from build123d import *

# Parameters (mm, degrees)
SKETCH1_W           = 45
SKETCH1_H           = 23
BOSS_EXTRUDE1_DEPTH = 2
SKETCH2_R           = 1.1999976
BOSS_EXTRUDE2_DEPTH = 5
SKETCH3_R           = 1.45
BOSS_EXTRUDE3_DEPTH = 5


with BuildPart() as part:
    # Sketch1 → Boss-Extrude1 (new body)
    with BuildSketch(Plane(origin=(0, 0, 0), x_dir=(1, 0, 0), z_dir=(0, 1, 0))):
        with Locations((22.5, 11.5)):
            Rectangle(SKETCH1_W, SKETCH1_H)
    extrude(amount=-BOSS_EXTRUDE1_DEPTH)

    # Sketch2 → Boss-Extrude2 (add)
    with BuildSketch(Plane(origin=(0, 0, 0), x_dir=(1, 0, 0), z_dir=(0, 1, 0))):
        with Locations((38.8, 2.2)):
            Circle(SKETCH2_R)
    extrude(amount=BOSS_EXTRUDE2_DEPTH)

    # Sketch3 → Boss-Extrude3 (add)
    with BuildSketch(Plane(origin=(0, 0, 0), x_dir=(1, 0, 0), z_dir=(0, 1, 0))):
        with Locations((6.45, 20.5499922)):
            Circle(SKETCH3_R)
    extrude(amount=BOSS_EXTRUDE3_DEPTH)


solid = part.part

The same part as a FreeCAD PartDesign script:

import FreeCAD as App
import Part
import Sketcher

V = App.Vector
Q = App.Units.Quantity


def add_polygon(sketch, points):
    """Adds a closed chain of lines whose ends are joined by coincident constraints."""
    first, n = sketch.GeometryCount, len(points)
    for a, b in zip(points, points[1:] + points[:1]):
        sketch.addGeometry(Part.LineSegment(App.Vector(*a, 0), App.Vector(*b, 0)), False)
    for i in range(n):
        sketch.addConstraint(Sketcher.Constraint("Coincident", first + i, 2, first + (i + 1) % n, 1))

doc = App.newDocument("Part")
body = doc.addObject("PartDesign::Body", "Body")

# Sketch on XZ plane
sketch1 = body.newObject("Sketcher::SketchObject", "Sketch")
sketch1.AttachmentSupport = (doc.getObject("XZ_Plane"), [""])
sketch1.MapMode = "FlatFace"
add_polygon(sketch1, [(0, -23), (0, 0), (45, 0), (45, -23)])  # lines 0-3
sketch1.addConstraint(Sketcher.Constraint("Vertical", 0))
sketch1.addConstraint(Sketcher.Constraint("Horizontal", 1))
sketch1.addConstraint(Sketcher.Constraint("Vertical", 2))
sketch1.addConstraint(Sketcher.Constraint("Horizontal", 3))
sketch1.addConstraint(Sketcher.Constraint("Coincident", 0, 2, -1, 1))
sketch1.addConstraint(Sketcher.Constraint("DistanceX", 1, 1, 1, 2, Q("45 mm")))
sketch1.addConstraint(Sketcher.Constraint("DistanceY", 0, 1, 0, 2, Q("23 mm")))
pad1 = body.newObject("PartDesign::Pad", "Pad")
pad1.Profile = sketch1
pad1.Length = 2

# Sketch on XZ plane
sketch2 = body.newObject("Sketcher::SketchObject", "Sketch001")
sketch2.AttachmentSupport = (doc.getObject("XZ_Plane"), [""])
sketch2.MapMode = "FlatFace"
sketch2.addGeometry(Part.Circle(V(38.8, -2.2, 0), V(0, 0, 1), 1.199998), False)
sketch2.addConstraint(Sketcher.Constraint("DistanceX", -1, 1, 0, 3, Q("38.8 mm")))
sketch2.addConstraint(Sketcher.Constraint("DistanceY", 0, 3, -1, 1, Q("2.2 mm")))
sketch2.addConstraint(Sketcher.Constraint("Diameter", 0, Q("2.399995 mm")))
pad2 = body.newObject("PartDesign::Pad", "Pad001")
pad2.Profile = sketch2
pad2.Length = 5
pad2.Reversed = True

# Sketch on XZ plane
sketch3 = body.newObject("Sketcher::SketchObject", "Sketch002")
sketch3.AttachmentSupport = (doc.getObject("XZ_Plane"), [""])
sketch3.MapMode = "FlatFace"
sketch3.addGeometry(Part.Circle(V(6.45, -20.549992, 0), V(0, 0, 1), 1.45), False)
sketch3.addConstraint(Sketcher.Constraint("Diameter", 0, Q("2.9 mm")))
sketch3.addConstraint(Sketcher.Constraint("DistanceX", -1, 1, 0, 3, Q("6.45 mm")))
sketch3.addConstraint(Sketcher.Constraint("DistanceY", 0, 3, -1, 1, Q("20.549992 mm")))
pad3 = body.newObject("PartDesign::Pad", "Pad002")
pad3.Profile = sketch3
pad3.Length = 5
pad3.Reversed = True

doc.recompute()
